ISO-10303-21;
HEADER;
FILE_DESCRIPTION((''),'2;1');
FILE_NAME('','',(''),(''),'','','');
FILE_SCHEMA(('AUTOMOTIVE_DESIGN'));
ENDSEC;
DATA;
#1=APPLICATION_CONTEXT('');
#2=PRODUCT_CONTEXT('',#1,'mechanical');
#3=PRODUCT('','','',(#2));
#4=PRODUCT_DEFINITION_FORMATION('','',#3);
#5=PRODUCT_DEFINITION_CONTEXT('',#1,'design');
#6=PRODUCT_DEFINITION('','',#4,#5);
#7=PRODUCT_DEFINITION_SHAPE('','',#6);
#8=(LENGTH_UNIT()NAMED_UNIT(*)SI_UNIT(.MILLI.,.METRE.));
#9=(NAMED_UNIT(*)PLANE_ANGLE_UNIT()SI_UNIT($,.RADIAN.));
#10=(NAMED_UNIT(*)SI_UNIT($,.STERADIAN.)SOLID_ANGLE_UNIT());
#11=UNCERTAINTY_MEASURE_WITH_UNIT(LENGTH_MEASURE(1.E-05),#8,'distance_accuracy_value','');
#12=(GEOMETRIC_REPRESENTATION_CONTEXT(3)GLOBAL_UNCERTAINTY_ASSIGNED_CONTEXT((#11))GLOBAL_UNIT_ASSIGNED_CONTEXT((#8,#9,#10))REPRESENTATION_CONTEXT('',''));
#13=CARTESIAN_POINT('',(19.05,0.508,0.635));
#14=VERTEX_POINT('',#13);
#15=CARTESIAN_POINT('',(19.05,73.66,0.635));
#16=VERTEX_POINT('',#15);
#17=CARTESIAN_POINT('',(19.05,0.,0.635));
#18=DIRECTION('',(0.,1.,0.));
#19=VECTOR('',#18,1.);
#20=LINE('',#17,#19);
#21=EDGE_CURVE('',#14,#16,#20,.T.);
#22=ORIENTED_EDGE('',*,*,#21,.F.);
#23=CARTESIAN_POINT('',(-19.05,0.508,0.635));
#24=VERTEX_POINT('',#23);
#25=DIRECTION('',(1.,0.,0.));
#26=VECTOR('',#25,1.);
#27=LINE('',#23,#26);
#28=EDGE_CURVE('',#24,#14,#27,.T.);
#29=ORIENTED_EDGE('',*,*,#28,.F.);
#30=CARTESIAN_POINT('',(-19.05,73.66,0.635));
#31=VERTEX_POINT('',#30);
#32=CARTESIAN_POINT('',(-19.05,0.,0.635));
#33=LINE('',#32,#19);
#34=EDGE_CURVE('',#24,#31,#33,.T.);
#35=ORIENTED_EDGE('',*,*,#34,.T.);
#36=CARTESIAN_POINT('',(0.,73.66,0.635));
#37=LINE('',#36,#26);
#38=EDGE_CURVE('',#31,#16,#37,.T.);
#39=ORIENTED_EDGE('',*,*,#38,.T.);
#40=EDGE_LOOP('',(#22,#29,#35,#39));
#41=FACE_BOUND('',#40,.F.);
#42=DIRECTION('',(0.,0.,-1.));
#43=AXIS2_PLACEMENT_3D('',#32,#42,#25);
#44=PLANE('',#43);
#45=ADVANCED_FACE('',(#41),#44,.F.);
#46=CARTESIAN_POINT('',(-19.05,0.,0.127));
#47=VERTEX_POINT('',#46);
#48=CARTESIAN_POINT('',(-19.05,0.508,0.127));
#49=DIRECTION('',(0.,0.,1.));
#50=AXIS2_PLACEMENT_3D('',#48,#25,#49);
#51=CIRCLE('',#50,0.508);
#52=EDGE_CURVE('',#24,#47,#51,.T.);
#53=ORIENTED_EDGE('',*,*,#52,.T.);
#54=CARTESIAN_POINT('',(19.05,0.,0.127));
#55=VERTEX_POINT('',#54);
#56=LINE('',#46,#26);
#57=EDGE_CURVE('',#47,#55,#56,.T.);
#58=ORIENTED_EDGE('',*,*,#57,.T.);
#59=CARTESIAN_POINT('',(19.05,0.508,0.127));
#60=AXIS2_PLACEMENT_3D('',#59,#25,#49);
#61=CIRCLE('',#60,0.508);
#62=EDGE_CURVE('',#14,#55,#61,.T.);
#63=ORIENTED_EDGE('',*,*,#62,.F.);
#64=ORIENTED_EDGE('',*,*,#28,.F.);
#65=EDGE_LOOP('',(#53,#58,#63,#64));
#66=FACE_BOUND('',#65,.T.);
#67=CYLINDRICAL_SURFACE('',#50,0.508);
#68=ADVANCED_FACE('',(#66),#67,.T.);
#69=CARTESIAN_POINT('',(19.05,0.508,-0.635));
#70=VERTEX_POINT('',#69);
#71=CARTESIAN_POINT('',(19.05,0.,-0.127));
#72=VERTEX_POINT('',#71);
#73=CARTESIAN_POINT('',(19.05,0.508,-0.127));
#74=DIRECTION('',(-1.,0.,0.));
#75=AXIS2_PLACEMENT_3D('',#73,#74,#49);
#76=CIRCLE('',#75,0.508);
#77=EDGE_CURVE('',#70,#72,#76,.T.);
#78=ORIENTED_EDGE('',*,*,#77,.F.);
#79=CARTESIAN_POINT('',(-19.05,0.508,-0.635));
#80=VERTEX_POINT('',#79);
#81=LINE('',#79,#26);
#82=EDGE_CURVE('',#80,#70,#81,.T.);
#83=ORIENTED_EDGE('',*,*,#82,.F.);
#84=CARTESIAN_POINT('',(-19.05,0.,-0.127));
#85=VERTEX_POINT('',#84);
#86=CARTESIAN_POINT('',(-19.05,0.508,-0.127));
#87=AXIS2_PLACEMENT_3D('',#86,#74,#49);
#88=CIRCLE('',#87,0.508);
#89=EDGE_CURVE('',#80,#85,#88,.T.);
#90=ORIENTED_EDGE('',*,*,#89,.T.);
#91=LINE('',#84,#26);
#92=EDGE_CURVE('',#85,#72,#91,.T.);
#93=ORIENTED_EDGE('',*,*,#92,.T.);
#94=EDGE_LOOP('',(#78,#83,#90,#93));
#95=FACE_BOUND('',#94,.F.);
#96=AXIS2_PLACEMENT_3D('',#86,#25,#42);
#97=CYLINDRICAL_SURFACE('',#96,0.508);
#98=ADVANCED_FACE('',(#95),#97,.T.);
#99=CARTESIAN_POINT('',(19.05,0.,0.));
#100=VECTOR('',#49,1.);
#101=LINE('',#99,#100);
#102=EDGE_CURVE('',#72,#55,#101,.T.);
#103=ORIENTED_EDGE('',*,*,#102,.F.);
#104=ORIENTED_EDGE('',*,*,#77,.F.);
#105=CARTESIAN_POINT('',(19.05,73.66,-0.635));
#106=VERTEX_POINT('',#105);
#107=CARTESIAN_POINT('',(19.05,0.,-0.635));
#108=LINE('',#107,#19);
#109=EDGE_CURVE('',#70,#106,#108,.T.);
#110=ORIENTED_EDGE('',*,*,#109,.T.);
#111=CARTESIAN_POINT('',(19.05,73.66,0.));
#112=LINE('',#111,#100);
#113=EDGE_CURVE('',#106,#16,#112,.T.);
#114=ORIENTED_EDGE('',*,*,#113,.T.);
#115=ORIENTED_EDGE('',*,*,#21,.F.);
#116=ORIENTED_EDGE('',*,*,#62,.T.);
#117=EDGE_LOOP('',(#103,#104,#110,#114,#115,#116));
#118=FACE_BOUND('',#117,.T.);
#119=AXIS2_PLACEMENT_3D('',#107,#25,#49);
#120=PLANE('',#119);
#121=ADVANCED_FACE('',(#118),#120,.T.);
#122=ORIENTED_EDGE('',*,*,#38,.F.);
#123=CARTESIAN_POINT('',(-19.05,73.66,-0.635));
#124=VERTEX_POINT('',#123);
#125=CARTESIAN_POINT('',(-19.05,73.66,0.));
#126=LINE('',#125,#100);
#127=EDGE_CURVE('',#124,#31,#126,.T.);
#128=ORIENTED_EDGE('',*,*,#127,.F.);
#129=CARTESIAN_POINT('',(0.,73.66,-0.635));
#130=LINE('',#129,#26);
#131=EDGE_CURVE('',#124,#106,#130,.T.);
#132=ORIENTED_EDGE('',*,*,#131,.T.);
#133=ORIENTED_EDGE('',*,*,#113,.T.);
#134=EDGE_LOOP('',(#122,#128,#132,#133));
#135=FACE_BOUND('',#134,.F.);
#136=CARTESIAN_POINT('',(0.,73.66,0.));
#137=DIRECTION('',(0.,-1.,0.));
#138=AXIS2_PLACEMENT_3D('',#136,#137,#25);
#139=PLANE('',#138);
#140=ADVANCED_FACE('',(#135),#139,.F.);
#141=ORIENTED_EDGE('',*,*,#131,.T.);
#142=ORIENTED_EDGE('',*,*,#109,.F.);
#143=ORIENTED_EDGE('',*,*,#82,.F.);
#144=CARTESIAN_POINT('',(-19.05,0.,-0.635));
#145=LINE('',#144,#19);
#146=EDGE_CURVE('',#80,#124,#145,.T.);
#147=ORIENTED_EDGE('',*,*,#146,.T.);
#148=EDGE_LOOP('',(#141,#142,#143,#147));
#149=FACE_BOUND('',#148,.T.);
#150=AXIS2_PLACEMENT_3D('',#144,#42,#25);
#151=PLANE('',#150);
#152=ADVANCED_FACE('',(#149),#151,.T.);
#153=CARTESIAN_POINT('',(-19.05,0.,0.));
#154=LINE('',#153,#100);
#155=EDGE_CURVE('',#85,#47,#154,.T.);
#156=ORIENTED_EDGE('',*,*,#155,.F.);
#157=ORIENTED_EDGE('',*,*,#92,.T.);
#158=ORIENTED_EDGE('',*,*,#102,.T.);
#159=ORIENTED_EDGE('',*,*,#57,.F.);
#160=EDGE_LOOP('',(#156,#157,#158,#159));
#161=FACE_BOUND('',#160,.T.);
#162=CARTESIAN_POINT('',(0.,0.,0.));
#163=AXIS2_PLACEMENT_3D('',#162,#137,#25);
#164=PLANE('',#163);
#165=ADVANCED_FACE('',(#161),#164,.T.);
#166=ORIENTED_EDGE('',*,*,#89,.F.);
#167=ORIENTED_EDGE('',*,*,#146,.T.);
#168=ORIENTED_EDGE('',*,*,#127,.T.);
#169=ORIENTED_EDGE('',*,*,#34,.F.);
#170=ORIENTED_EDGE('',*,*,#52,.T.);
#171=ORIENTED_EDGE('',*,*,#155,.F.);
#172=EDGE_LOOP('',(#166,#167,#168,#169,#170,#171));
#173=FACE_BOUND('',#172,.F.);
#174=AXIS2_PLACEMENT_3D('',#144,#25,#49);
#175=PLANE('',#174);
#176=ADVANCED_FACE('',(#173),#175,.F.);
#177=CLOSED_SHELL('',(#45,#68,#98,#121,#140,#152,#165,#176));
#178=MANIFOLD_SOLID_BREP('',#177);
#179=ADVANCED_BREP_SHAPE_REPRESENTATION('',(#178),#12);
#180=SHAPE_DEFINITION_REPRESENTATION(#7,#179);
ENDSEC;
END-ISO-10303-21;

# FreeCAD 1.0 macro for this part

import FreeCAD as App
import Part
import Sketcher

V = App.Vector
Q = App.Units.Quantity


def edges_at(feature, points):
    """Names of the edges that pass closest to the given points."""
    edges = feature.Shape.Edges
    near = lambda p: min(range(len(edges)), key=lambda i: edges[i].distToShape(Part.Vertex(*p))[0])
    return sorted({f"Edge{near(p) + 1}" for p in points})


def add_polygon(sketch, points):
    """Adds a closed chain of lines whose ends are joined by coincident constraints."""
    first, n = sketch.GeometryCount, len(points)
    for a, b in zip(points, points[1:] + points[:1]):
        sketch.addGeometry(Part.LineSegment(App.Vector(*a, 0), App.Vector(*b, 0)), False)
    for i in range(n):
        sketch.addConstraint(Sketcher.Constraint("Coincident", first + i, 2, first + (i + 1) % n, 1))

doc = App.newDocument("Part")
body = doc.addObject("PartDesign::Body", "Body")

# Sketch on XZ plane
sketch1 = body.newObject("Sketcher::SketchObject", "Sketch")
sketch1.AttachmentSupport = (doc.getObject("XZ_Plane"), [""])
sketch1.MapMode = "FlatFace"
add_polygon(sketch1, [(-19.05, 0.635), (-19.05, -0.635), (19.05, -0.635), (19.05, 0.635)])  # lines 0-3
sketch1.addConstraint(Sketcher.Constraint("Vertical", 0))
sketch1.addConstraint(Sketcher.Constraint("Horizontal", 1))
sketch1.addConstraint(Sketcher.Constraint("Vertical", 2))
sketch1.addConstraint(Sketcher.Constraint("Horizontal", 3))
sketch1.addConstraint(Sketcher.Constraint("Symmetric", 0, 2, 2, 2, -1, 1))
sketch1.addConstraint(Sketcher.Constraint("DistanceX", 1, 1, 1, 2, Q("1.5 in")))
sketch1.addConstraint(Sketcher.Constraint("DistanceY", 0, 2, 0, 1, Q("0.05 in")))
pad1 = body.newObject("PartDesign::Pad", "Pad")
pad1.Profile = sketch1
pad1.Length = Q("2.9 in")
pad1.Reversed = True
doc.recompute()

fillet = body.newObject("PartDesign::Fillet", "Fillet")
fillet.Base = (pad1, edges_at(pad1, [(0, 0, 0.635), (0, 0, -0.635)]))
fillet.Radius = Q("0.02 in")

doc.recompute()
